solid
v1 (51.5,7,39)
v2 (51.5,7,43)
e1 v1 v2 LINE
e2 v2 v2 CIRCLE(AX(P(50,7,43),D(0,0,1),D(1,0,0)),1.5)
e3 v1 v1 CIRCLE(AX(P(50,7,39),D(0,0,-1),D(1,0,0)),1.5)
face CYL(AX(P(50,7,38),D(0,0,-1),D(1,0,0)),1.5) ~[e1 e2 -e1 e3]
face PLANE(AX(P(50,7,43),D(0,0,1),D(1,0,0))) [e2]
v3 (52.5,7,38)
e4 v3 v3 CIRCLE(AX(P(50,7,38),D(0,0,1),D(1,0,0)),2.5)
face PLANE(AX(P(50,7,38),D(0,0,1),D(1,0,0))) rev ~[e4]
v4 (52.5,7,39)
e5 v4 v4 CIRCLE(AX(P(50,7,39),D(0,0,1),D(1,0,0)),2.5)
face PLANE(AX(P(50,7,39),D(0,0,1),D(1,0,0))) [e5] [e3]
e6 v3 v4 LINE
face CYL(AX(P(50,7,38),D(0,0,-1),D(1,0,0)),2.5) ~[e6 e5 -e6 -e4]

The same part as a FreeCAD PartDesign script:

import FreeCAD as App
import Part
import Sketcher
from FreeCAD import Vector
Q = App.Units.Quantity

doc = App.newDocument("Part")
body = doc.addObject("PartDesign::Body", "Body")

sketch1 = body.newObject("Sketcher::SketchObject", "Sketch")
sketch1.AttachmentSupport = (doc.getObject("XY_Plane"), [""])
sketch1.MapMode = "FlatFace"
sketch1.AttachmentOffset = App.Placement(Vector(0, 0, 37), App.Rotation())
sketch1.addGeometry(Part.Circle(Vector(50, 7, 0), Vector(0, 0, 1), 2.5), False)
sketch1.addConstraint([
    Sketcher.Constraint("Diameter", 0, Q("5 mm")),
    Sketcher.Constraint("DistanceX", -1, 1, 0, 3, Q("50 mm")),
    Sketcher.Constraint("DistanceY", -1, 1, 0, 3, Q("7 mm")),
])
pad1 = body.newObject("PartDesign::Pad", "Pad")
pad1.Profile = sketch1
pad1.Length = 1
body2 = doc.addObject("PartDesign::Body", "Body001")

sketch2 = body2.newObject("Sketcher::SketchObject", "Sketch001")
sketch2.AttachmentSupport = (doc.getObject("XY_Plane001"), [""])
sketch2.MapMode = "FlatFace"
sketch2.AttachmentOffset = App.Placement(Vector(0, 0, 37), App.Rotation())
sketch2.addGeometry(Part.Circle(Vector(50, 7, 0), Vector(0, 0, 1), 1.5), False)
sketch2.addConstraint([
    Sketcher.Constraint("Diameter", 0, Q("3 mm")),
    Sketcher.Constraint("DistanceX", -1, 1, 0, 3, Q("50 mm")),
    Sketcher.Constraint("DistanceY", -1, 1, 0, 3, Q("7 mm")),
])
pad2 = body2.newObject("PartDesign::Pad", "Pad001")
pad2.Profile = sketch2
pad2.Length = 5
doc.recompute()

boolean = body2.newObject("PartDesign::Boolean", "Boolean")
boolean.Type = "Fuse"
boolean.addObjects([body])
body3 = doc.addObject("PartDesign::Body", "Body002")
doc.recompute()

body2.Placement = App.Placement(Vector(0, 0, 1), App.Rotation(Vector(0, 0, 1), 0))
boolean2 = body3.newObject("PartDesign::Boolean", "Boolean001")
boolean2.Type = "Fuse"
boolean2.addObjects([body2])

doc.recompute()
